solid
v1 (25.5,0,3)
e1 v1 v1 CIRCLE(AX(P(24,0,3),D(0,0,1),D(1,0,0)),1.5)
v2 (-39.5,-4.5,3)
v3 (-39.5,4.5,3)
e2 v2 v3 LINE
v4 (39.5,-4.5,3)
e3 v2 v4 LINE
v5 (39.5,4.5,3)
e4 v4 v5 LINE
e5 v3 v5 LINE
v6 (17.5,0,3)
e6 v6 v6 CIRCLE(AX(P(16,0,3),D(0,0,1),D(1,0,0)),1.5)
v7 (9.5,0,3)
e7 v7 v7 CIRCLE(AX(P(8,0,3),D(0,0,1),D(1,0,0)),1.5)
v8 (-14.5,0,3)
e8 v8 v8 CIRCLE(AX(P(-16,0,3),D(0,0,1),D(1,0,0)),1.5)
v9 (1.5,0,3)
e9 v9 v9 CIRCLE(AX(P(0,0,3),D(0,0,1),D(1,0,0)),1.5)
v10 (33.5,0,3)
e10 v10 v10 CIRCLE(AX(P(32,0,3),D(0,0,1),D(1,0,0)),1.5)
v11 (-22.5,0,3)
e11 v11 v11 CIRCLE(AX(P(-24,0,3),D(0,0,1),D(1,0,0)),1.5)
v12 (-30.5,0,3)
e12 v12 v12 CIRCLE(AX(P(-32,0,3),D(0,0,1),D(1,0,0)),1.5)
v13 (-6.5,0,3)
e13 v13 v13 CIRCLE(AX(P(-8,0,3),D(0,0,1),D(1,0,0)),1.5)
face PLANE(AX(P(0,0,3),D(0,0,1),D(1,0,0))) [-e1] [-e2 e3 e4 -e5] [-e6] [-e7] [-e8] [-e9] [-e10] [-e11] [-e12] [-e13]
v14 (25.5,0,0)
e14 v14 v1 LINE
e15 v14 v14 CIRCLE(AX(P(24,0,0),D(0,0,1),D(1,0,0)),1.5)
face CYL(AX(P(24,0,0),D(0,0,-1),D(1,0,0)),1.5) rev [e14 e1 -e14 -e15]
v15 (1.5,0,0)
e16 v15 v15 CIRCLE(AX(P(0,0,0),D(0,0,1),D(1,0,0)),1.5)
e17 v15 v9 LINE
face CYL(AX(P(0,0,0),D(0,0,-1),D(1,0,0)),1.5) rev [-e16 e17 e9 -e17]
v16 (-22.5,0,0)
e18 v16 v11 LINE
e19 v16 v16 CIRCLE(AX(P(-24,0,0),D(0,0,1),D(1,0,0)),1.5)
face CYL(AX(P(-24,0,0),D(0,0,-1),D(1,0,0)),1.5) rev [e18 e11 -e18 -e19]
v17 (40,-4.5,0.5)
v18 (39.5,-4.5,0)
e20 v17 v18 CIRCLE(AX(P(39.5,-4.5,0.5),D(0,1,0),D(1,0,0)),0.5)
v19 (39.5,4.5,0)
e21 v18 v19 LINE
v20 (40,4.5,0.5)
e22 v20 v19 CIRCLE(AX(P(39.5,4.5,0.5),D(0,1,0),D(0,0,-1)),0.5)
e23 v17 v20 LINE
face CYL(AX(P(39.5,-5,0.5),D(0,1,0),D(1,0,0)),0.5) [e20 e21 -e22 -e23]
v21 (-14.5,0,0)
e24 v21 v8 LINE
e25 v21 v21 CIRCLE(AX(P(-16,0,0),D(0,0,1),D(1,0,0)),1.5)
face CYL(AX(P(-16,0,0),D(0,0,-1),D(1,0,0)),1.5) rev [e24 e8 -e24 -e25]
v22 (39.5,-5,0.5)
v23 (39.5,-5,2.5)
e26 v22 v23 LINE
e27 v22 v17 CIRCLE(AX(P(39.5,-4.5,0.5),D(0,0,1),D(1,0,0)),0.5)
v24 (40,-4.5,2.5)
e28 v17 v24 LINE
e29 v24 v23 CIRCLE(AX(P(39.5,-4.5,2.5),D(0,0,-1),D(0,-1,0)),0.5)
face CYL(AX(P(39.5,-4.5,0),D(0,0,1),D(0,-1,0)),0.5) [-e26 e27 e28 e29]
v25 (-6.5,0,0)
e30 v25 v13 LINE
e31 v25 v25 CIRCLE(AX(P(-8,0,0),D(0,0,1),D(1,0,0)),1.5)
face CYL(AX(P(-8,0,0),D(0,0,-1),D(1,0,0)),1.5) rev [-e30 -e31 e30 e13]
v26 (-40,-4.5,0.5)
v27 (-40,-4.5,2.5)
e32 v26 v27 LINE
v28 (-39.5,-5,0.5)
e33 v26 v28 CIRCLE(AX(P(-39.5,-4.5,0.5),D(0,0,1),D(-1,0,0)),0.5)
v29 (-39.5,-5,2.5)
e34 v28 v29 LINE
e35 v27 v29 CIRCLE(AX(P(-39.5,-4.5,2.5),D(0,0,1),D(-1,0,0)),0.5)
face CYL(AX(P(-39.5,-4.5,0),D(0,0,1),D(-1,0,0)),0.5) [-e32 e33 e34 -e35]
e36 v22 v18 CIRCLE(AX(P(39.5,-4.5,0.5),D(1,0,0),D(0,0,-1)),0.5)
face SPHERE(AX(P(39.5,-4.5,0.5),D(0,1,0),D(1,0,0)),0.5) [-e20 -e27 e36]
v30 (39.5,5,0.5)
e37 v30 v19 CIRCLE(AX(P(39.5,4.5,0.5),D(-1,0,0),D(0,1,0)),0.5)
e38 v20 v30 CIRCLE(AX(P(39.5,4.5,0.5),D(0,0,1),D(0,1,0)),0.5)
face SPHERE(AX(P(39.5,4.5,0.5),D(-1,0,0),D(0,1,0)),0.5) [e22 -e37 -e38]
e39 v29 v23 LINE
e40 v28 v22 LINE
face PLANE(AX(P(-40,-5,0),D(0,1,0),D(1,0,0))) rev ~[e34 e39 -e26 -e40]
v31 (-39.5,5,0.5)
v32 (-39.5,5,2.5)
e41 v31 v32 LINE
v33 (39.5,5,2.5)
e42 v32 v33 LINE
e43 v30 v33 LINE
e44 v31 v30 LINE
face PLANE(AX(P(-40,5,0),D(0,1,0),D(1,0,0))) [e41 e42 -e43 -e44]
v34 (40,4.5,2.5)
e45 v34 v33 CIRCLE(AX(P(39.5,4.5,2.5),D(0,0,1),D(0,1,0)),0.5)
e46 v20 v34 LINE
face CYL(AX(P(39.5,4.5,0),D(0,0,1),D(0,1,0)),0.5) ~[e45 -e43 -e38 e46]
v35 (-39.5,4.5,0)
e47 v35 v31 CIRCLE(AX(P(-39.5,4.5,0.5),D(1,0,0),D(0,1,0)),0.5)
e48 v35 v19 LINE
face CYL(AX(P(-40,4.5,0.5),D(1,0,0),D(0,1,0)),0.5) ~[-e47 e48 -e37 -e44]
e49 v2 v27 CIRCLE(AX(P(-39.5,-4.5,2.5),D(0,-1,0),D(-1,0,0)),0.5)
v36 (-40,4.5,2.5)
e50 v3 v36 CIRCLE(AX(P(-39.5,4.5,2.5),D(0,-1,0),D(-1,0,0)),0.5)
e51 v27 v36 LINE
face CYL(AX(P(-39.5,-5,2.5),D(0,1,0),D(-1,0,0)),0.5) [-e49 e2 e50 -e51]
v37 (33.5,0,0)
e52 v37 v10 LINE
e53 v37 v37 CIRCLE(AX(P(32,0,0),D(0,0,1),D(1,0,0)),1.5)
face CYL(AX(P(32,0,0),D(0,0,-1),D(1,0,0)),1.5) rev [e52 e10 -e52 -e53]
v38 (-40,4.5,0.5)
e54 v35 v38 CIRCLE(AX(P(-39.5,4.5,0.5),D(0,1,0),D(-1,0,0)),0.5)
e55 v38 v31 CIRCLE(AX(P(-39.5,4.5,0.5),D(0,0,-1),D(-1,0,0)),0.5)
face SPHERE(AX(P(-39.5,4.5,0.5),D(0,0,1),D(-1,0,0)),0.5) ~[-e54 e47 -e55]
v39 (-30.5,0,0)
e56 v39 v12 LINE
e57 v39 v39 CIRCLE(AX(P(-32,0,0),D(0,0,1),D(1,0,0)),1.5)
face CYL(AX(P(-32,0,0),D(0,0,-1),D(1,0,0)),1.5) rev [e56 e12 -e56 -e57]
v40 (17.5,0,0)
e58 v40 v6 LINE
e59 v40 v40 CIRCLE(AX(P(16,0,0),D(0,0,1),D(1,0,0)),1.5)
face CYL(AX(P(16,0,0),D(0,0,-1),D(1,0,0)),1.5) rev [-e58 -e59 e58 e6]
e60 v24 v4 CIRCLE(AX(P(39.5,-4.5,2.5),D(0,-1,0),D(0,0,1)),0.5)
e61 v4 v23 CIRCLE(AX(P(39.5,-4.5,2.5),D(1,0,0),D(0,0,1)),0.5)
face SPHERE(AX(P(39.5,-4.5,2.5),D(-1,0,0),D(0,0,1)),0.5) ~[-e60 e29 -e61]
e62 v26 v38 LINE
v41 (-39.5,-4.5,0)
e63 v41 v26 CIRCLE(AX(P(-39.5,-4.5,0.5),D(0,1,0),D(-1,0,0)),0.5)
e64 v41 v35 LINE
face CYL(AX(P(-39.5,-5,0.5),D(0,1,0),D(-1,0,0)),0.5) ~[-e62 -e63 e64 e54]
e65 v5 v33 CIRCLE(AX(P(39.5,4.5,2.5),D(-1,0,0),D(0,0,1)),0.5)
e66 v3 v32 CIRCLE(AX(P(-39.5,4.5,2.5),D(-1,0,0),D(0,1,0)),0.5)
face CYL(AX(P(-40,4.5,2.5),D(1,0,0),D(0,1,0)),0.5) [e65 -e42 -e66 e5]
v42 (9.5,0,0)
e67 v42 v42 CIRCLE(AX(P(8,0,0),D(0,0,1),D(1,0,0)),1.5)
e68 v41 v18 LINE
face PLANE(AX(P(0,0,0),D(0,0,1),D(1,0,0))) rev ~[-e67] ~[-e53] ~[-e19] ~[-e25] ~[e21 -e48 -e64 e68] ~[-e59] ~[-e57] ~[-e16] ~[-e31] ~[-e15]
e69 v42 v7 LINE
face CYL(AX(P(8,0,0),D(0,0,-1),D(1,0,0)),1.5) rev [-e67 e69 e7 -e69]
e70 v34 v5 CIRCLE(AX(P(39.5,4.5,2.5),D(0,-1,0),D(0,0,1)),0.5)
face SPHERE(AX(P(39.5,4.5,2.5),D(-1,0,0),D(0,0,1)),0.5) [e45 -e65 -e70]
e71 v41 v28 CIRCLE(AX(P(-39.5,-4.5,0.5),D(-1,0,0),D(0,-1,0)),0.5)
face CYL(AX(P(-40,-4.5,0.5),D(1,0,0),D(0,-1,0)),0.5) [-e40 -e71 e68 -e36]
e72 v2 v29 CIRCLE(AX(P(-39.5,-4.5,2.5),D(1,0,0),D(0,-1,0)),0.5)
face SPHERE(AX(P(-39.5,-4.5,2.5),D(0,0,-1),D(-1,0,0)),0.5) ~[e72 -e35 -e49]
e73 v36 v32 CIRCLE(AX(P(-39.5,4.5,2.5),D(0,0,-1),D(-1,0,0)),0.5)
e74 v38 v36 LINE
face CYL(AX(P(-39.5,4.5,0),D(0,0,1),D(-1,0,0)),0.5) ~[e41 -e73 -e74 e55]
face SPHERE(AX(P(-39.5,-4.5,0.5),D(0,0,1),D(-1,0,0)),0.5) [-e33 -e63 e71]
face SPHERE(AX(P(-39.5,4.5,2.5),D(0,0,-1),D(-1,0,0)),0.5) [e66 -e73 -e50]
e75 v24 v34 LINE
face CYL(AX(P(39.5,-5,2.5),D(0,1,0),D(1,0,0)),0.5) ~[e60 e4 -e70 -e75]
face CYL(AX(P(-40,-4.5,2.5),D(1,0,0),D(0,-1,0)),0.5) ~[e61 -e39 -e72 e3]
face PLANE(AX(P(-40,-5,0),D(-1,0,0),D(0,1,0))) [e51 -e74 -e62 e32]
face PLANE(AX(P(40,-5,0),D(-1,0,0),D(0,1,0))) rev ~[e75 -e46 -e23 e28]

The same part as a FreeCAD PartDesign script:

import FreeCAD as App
import Part
import Sketcher


def edges_at(feature, points):
    """Names of the edges that pass closest to the given points."""
    edges = feature.Shape.Edges
    near = lambda p: min(range(len(edges)), key=lambda i: edges[i].distToShape(Part.Vertex(*p))[0])
    return sorted({f"Edge{near(p) + 1}" for p in points})


def add_polygon(sketch, points):
    """Adds a closed chain of lines whose ends are joined by coincident constraints."""
    first, n = sketch.GeometryCount, len(points)
    for a, b in zip(points, points[1:] + points[:1]):
        sketch.addGeometry(Part.LineSegment(App.Vector(*a, 0), App.Vector(*b, 0)), False)
    for i in range(n):
        sketch.addConstraint(Sketcher.Constraint("Coincident", first + i, 2, first + (i + 1) % n, 1))

doc = App.newDocument("Part")
body = doc.addObject("PartDesign::Body", "Body")

sketch1 = body.newObject("Sketcher::SketchObject", "Sketch")
sketch1.AttachmentSupport = (doc.getObject("XY_Plane"), [""])
sketch1.MapMode = "FlatFace"
add_polygon(sketch1, [(-40, 5), (-40, -5), (40, -5), (40, 5)])
sketch1.addGeometry(Part.Circle(App.Vector(-32, 0, 0), App.Vector(0, 0, 1), 1.5), False)
sketch1.addGeometry(Part.Circle(App.Vector(-24, 0, 0), App.Vector(0, 0, 1), 1.5), False)
sketch1.addGeometry(Part.Circle(App.Vector(-16, 0, 0), App.Vector(0, 0, 1), 1.5), False)
sketch1.addGeometry(Part.Circle(App.Vector(-8, 0, 0), App.Vector(0, 0, 1), 1.5), False)
sketch1.addGeometry(Part.Circle(App.Vector(0, 0, 0), App.Vector(0, 0, 1), 1.5), False)
sketch1.addGeometry(Part.Circle(App.Vector(8, 0, 0), App.Vector(0, 0, 1), 1.5), False)
sketch1.addGeometry(Part.Circle(App.Vector(16, 0, 0), App.Vector(0, 0, 1), 1.5), False)
sketch1.addGeometry(Part.Circle(App.Vector(24, 0, 0), App.Vector(0, 0, 1), 1.5), False)
sketch1.addGeometry(Part.Circle(App.Vector(32, 0, 0), App.Vector(0, 0, 1), 1.5), False)
sketch1.addConstraint([
    Sketcher.Constraint("Vertical", 0),
    Sketcher.Constraint("Horizontal", 1),
    Sketcher.Constraint("Vertical", 2),
    Sketcher.Constraint("Horizontal", 3),
    Sketcher.Constraint("Coincident", 8, 3, -1, 1),
    Sketcher.Constraint("Equal", 4, 5),
    Sketcher.Constraint("Equal", 5, 6),
    Sketcher.Constraint("Equal", 6, 7),
    Sketcher.Constraint("Equal", 7, 8),
    Sketcher.Constraint("Equal", 8, 9),
    Sketcher.Constraint("Equal", 9, 10),
    Sketcher.Constraint("Equal", 10, 11),
    Sketcher.Constraint("Equal", 11, 12),
    Sketcher.Constraint("Symmetric", 7, 3, 9, 3, -1, 1),
    Sketcher.Constraint("Symmetric", 6, 3, 10, 3, -1, 1),
    Sketcher.Constraint("Symmetric", 5, 3, 11, 3, -1, 1),
    Sketcher.Constraint("Symmetric", 4, 3, 12, 3, -1, 1),
    Sketcher.Constraint("Symmetric", 0, 2, 2, 2, -1, 1),
    Sketcher.Constraint("PointOnObject", 4, 3, -1),
    Sketcher.Constraint("PointOnObject", 5, 3, -1),
    Sketcher.Constraint("PointOnObject", 6, 3, -1),
    Sketcher.Constraint("PointOnObject", 7, 3, -1),
    Sketcher.Constraint("Diameter", 4, 3.0),
    Sketcher.Constraint("DistanceX", 1, 1, 1, 2, 80.0),
    Sketcher.Constraint("DistanceY", 0, 2, 0, 1, 10.0),
    Sketcher.Constraint("DistanceX", 4, 3, -1, 1, 32.0),
    Sketcher.Constraint("DistanceX", 5, 3, -1, 1, 24.0),
    Sketcher.Constraint("DistanceX", 6, 3, -1, 1, 16.0),
    Sketcher.Constraint("DistanceX", 7, 3, -1, 1, 8.0),
])
pad1 = body.newObject("PartDesign::Pad", "Pad")
pad1.Profile = sketch1
pad1.Length = 3
doc.recompute()

fillet = body.newObject("PartDesign::Fillet", "Fillet")
fillet.Base = (pad1, edges_at(pad1, [
    (-40, 5, 1.5),
    (-40, -5, 1.5),
    (-40, 0, 3),
    (-40, 0, 0),
    (0, 5, 3),
    (0, 5, 0),
    (0, -5, 3),
    (40, 0, 3),
    (40, 5, 1.5),
    (40, 0, 0),
    (40, -5, 1.5),
    (0, -5, 0),
]))
fillet.Radius = 0.5

doc.recompute()
